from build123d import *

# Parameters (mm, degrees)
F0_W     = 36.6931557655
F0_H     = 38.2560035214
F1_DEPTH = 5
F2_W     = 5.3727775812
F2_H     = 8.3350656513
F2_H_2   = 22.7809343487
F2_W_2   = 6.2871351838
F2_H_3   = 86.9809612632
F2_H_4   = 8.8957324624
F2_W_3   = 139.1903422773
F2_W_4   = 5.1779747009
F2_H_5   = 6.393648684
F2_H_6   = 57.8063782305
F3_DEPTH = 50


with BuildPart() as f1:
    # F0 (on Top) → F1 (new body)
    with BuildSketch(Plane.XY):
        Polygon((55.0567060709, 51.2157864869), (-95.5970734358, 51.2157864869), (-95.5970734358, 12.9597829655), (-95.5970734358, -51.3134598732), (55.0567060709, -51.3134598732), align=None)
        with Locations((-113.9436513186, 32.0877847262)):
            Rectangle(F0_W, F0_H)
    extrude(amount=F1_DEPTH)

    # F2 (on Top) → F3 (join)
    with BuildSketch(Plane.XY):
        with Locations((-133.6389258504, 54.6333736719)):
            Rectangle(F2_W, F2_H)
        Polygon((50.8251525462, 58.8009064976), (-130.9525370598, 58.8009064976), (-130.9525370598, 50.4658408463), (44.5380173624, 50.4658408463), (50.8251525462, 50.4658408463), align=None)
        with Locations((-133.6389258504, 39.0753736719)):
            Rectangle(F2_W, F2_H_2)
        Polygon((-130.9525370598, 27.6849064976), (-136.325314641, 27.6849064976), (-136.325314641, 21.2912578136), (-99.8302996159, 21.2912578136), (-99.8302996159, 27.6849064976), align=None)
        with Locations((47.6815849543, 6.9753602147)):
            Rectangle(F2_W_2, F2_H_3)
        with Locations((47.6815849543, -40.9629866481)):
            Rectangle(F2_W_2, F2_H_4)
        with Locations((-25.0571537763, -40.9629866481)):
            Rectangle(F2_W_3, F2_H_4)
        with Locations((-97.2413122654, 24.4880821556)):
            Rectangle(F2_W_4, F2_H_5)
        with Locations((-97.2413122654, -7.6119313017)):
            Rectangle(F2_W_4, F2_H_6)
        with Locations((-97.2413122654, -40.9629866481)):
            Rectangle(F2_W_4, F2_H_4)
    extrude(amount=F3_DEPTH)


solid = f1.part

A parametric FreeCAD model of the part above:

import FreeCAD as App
import Part
import Sketcher

V = App.Vector


def add_polygon(sketch, points):
    """Adds a closed chain of lines whose ends are joined by coincident constraints."""
    first, n = sketch.GeometryCount, len(points)
    for a, b in zip(points, points[1:] + points[:1]):
        sketch.addGeometry(Part.LineSegment(App.Vector(*a, 0), App.Vector(*b, 0)), False)
    for i in range(n):
        sketch.addConstraint(Sketcher.Constraint("Coincident", first + i, 2, first + (i + 1) % n, 1))

doc = App.newDocument("Part")
body = doc.addObject("PartDesign::Body", "Body")

# Sketch on XY plane
sketch1 = doc.addObject("Sketcher::SketchObject", "Sketch")
body.addObject(sketch1)
sketch1.AttachmentSupport = (doc.XY_Plane, [""])
sketch1.MapMode = "FlatFace"
add_polygon(sketch1, [(55, 51), (-132, 51), (-132, 13), (-96, 13), (-96, -51), (55, -51)])  # lines 0-5
sketch1.addConstraint([
    Sketcher.Constraint("Horizontal", 0),
    Sketcher.Constraint("Vertical", 1),
    Sketcher.Constraint("Horizontal", 2),
    Sketcher.Constraint("Vertical", 3),
    Sketcher.Constraint("Horizontal", 4),
    Sketcher.Constraint("Vertical", 5),
    Sketcher.Constraint("DistanceX", 4, 1, 4, 2, 150.65378),
    Sketcher.Constraint("DistanceX", 0, 2, 0, 1, 187.346935),
    Sketcher.Constraint("DistanceY", 1, 2, 1, 1, 38.256004),
    Sketcher.Constraint("DistanceY", 3, 2, 3, 1, 64.273243),
    Sketcher.Constraint("DistanceX", 0, 2, -1, 1, 132.290229),
    Sketcher.Constraint("DistanceY", 3, 2, -1, 1, 51.31346),
])
pad1 = doc.addObject("PartDesign::Pad", "Pad")
body.addObject(pad1)
pad1.Profile = sketch1
pad1.Length = 5

# Sketch on XY plane
sketch2 = doc.addObject("Sketcher::SketchObject", "Sketch001")
body.addObject(sketch2)
sketch2.AttachmentSupport = (doc.XY_Plane, [""])
sketch2.MapMode = "FlatFace"
add_polygon(sketch2, [(-100, 21), (-100, -45), (51, -45), (51, 59), (-136, 59), (-136, 21)])  # lines 0-5
add_polygon(sketch2, [(45, -37), (-95, -37), (-95, 28), (-131, 28), (-131, 50), (45, 50)])  # lines 6-11
sketch2.addConstraint([
    Sketcher.Constraint("Vertical", 0),
    Sketcher.Constraint("Horizontal", 1),
    Sketcher.Constraint("Vertical", 2),
    Sketcher.Constraint("Horizontal", 3),
    Sketcher.Constraint("Vertical", 4),
    Sketcher.Constraint("Horizontal", 5),
    Sketcher.Constraint("Horizontal", 6),
    Sketcher.Constraint("Vertical", 7),
    Sketcher.Constraint("Horizontal", 8),
    Sketcher.Constraint("Vertical", 9),
    Sketcher.Constraint("Horizontal", 10),
    Sketcher.Constraint("Vertical", 11),
    Sketcher.Constraint("DistanceY", 7, 2, 3, 2, 31.116),
    Sketcher.Constraint("DistanceY", 0, 2, 0, 1, 66.702111),
    Sketcher.Constraint("DistanceY", 2, 1, 2, 2, 104.211759),
    Sketcher.Constraint("DistanceY", 11, 2, 11, 1, 86.980961),
    Sketcher.Constraint("DistanceX", 0, 2, -1, 1, 99.8303),
    Sketcher.Constraint("DistanceX", 1, 1, 1, 2, 150.655452),
    Sketcher.Constraint("DistanceX", 3, 2, 3, 1, 187.150467),
    Sketcher.Constraint("DistanceX", 6, 2, 6, 1, 139.190342),
    Sketcher.Constraint("DistanceX", 8, 2, 8, 1, 36.300212),
    Sketcher.Constraint("DistanceY", 7, 1, 7, 2, 64.200027),
    Sketcher.Constraint("DistanceY", 6, 2, -1, 1, 36.51512),
    Sketcher.Constraint("DistanceX", 4, 2, 6, 2, 41.67299),
])
pad2 = doc.addObject("PartDesign::Pad", "Pad001")
body.addObject(pad2)
pad2.Profile = sketch2
pad2.Length = 50

doc.recompute()
